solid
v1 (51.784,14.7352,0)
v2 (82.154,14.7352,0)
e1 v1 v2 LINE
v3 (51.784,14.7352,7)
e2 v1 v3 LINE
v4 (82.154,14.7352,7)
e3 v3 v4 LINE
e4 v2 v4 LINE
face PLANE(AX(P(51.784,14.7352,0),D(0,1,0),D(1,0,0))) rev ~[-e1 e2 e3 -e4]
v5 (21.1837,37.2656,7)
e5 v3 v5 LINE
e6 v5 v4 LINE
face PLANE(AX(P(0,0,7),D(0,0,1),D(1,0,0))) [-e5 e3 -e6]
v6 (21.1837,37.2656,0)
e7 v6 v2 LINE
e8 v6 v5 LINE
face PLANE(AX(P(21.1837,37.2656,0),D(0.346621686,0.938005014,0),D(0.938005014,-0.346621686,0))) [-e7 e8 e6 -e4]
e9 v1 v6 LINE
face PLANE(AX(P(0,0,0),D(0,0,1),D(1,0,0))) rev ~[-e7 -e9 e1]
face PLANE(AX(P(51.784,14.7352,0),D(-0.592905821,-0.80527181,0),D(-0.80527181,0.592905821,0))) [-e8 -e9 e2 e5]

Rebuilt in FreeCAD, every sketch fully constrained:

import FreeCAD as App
import Part
import Sketcher
from FreeCAD import Vector

doc = App.newDocument("Part")
body = doc.addObject("PartDesign::Body", "Body")

sketch1 = body.newObject("Sketcher::SketchObject", "Sketch")
sketch1.AttachmentSupport = (doc.getObject("XY_Plane"), [""])
sketch1.MapMode = "FlatFace"
sketch1.addGeometry(Part.LineSegment(Vector(21, 37, 0), Vector(52, 15, 0)), False)
sketch1.addGeometry(Part.LineSegment(Vector(52, 15, 0), Vector(82, 15, 0)), False)
sketch1.addGeometry(Part.LineSegment(Vector(82, 15, 0), Vector(21, 37, 0)), False)
sketch1.addConstraint(Sketcher.Constraint("Coincident", 0, 2, 1, 1))
sketch1.addConstraint(Sketcher.Constraint("Coincident", 1, 2, 2, 1))
sketch1.addConstraint(Sketcher.Constraint("Coincident", 2, 2, 0, 1))
sketch1.addConstraint(Sketcher.Constraint("Horizontal", 1))
sketch1.addConstraint(Sketcher.Constraint("Distance", 0, 38.0))
sketch1.addConstraint(Sketcher.Constraint("Distance", 2, 65.0))
sketch1.addConstraint(Sketcher.Constraint("DistanceX", 1, 1, 1, 2, 30.37))
sketch1.addConstraint(Sketcher.Constraint("DistanceX", -1, 1, 0, 2, 51.784))
sketch1.addConstraint(Sketcher.Constraint("DistanceY", -1, 1, 0, 2, 14.7352))
pad1 = body.newObject("PartDesign::Pad", "Pad")
pad1.Profile = sketch1
pad1.Length = 7

doc.recompute()
